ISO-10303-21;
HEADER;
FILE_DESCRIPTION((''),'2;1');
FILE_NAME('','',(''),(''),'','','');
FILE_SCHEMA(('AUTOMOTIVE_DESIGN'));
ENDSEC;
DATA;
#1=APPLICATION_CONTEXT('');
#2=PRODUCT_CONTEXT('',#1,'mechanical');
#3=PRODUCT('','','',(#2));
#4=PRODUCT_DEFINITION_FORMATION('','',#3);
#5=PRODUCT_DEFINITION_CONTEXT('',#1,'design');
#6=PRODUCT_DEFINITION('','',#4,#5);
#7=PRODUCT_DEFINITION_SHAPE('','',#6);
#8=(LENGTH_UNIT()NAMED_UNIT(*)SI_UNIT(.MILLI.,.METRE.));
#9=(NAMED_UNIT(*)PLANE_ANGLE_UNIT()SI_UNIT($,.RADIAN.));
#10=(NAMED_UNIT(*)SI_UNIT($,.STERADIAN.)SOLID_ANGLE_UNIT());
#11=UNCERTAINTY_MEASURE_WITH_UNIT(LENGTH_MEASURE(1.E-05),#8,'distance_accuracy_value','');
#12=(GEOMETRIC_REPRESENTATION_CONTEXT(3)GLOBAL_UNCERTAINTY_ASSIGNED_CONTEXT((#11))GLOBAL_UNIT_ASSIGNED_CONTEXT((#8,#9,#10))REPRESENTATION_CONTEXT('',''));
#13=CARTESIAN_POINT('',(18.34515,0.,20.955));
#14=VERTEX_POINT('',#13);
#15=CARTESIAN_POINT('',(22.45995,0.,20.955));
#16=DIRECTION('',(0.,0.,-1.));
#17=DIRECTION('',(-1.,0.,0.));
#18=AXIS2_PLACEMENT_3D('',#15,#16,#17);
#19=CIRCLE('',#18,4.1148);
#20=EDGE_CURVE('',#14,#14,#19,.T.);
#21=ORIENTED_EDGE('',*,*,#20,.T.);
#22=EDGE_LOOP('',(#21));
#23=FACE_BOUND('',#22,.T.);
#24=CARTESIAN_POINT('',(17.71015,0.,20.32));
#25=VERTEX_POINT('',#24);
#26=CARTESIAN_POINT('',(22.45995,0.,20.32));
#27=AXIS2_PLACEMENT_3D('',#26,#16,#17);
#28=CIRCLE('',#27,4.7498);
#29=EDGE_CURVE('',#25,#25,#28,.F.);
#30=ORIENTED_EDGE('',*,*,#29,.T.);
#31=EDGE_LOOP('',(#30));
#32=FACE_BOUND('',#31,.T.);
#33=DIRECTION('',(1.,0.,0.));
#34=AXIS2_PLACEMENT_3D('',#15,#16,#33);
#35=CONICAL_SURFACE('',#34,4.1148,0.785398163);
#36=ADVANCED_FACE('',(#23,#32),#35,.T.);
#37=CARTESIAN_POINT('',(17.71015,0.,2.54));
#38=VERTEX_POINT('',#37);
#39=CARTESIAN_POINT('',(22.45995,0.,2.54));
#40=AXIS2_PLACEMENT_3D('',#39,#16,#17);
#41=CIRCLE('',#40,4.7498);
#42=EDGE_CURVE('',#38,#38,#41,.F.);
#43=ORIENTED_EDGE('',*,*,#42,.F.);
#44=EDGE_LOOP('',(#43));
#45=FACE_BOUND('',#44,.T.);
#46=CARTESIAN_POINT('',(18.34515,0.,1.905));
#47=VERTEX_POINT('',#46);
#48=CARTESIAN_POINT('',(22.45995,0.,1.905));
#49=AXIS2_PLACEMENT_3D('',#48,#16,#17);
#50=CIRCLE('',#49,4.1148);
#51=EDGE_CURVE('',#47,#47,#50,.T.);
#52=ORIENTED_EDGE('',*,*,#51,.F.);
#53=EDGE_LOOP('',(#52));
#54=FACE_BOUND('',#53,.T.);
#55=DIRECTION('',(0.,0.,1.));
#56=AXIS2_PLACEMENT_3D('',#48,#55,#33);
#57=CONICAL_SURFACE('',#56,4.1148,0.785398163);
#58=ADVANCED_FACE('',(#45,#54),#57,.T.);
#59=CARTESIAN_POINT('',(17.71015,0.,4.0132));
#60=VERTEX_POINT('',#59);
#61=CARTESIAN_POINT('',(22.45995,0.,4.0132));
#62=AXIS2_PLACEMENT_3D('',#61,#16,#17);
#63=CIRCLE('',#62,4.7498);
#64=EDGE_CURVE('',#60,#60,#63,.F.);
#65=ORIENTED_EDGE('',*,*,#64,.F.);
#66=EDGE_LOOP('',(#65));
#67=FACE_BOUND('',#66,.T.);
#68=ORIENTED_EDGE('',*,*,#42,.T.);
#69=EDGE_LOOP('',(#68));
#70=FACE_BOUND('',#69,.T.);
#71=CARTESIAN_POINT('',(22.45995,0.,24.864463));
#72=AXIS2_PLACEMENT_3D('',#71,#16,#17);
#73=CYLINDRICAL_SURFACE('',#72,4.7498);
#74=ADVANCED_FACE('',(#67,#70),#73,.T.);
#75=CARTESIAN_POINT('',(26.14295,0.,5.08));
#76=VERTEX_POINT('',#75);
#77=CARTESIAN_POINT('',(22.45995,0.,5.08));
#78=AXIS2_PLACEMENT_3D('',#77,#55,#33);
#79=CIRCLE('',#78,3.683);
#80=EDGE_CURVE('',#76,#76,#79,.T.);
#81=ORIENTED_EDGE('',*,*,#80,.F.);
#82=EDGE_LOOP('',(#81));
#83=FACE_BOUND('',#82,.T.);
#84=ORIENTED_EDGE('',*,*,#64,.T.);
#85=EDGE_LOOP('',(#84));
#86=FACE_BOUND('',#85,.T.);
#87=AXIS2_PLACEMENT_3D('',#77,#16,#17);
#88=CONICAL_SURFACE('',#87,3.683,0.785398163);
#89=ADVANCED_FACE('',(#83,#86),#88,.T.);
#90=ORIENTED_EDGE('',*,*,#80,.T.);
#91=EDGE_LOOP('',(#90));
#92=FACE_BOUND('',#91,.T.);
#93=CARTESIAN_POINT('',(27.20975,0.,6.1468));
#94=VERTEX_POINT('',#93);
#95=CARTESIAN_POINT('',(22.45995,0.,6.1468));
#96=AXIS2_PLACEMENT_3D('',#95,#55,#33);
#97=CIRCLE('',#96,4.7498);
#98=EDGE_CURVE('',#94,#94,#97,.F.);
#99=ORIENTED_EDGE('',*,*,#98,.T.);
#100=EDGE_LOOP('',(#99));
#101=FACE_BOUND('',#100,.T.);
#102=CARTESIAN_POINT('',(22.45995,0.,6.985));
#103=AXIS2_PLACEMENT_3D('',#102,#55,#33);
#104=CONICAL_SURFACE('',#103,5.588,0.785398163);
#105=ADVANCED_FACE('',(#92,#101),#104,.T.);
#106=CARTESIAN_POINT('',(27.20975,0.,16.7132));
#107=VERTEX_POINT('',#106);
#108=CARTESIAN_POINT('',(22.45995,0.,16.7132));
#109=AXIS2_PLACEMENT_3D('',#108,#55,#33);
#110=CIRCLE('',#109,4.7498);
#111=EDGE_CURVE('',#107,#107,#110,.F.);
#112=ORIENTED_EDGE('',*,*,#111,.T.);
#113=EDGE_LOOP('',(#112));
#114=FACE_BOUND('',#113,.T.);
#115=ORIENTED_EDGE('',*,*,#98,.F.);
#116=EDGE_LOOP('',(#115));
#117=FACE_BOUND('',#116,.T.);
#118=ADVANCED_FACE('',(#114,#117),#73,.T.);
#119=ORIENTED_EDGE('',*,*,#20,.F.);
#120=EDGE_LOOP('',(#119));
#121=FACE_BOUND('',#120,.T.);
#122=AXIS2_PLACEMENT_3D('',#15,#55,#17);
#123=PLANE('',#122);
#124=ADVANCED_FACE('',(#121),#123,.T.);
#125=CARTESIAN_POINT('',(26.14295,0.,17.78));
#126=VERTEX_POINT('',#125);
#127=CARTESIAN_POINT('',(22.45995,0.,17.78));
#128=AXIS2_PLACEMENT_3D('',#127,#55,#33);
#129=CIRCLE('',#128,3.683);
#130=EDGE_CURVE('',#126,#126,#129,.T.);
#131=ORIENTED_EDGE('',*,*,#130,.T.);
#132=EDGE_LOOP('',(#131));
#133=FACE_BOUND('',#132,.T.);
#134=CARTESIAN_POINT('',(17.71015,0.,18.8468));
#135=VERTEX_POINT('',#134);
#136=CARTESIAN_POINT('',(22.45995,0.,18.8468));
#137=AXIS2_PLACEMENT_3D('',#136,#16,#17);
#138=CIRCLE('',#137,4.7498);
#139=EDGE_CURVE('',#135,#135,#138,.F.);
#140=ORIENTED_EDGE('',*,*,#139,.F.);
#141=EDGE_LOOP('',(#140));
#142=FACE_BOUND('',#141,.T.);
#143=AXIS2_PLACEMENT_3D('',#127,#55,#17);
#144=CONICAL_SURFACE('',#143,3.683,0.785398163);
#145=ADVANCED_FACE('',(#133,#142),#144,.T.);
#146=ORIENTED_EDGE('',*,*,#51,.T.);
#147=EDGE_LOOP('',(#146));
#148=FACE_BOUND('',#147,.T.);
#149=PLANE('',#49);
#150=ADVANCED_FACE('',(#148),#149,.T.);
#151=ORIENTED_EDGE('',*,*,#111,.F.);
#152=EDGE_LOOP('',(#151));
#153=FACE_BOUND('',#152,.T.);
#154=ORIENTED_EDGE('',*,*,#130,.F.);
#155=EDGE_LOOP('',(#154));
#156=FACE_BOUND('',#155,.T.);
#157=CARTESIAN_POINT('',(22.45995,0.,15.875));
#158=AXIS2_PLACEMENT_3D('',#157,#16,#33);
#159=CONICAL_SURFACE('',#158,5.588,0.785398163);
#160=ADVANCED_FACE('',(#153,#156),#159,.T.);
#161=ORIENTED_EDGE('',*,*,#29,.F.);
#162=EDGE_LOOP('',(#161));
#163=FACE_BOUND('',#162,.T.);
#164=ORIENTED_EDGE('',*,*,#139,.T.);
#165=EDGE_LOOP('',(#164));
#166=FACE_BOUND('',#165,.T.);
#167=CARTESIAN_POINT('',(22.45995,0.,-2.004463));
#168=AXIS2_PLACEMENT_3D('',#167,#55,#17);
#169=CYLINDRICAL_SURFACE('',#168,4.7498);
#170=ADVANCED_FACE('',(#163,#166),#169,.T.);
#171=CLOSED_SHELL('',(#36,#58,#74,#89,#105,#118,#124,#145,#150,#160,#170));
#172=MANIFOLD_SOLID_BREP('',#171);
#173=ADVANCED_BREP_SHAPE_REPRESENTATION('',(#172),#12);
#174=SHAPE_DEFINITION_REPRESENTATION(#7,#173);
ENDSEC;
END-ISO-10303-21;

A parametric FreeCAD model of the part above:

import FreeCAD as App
import Part
import Sketcher

V = App.Vector
Q = App.Units.Quantity


def edges_at(feature, points):
    """Names of the edges that pass closest to the given points."""
    edges = feature.Shape.Edges
    near = lambda p: min(range(len(edges)), key=lambda i: edges[i].distToShape(Part.Vertex(*p))[0])
    return sorted({f"Edge{near(p) + 1}" for p in points})


def add_polygon(sketch, points):
    """Adds a closed chain of lines whose ends are joined by coincident constraints."""
    first, n = sketch.GeometryCount, len(points)
    for a, b in zip(points, points[1:] + points[:1]):
        sketch.addGeometry(Part.LineSegment(App.Vector(*a, 0), App.Vector(*b, 0)), False)
    for i in range(n):
        sketch.addConstraint(Sketcher.Constraint("Coincident", first + i, 2, first + (i + 1) % n, 1))

doc = App.newDocument("Part")
params = doc.addObject("Spreadsheet::Sheet", "Params")
for row, (alias, value) in enumerate([
    ("sketch1_diameter", "0.374 in"),
    ("pad1_length", "0.45 in"),
    ("sketch2_height", "0.15 in"),
    ("groove_angle", "360 deg"),
    ("sketch3_diameter", "0.374 in"),
    ("pocket1_length", "0.075 in"),
    ("chamfer_size", "0.025 in"),
    ("chamfer2_size", "0.025 in"),
], start=1):
    params.set(f"A{row}", alias)
    params.set(f"B{row}", "=" + value)
    params.setAlias(f"B{row}", alias)

body = doc.addObject("PartDesign::Body", "Body")

sketch1 = body.newObject("Sketcher::SketchObject", "Sketch")
sketch1.AttachmentSupport = (doc.getObject("XY_Plane"), [""])
sketch1.MapMode = "FlatFace"
sketch1.addGeometry(Part.Circle(V(22.45995, 0, 0), V(0, 0, 1), 4.7498), False)
sketch1.addConstraint(Sketcher.Constraint("PointOnObject", 0, 3, -1))
sketch1.addConstraint(Sketcher.Constraint("Diameter", 0, Q("0.374 in")))
sketch1.addConstraint(Sketcher.Constraint("DistanceX", -1, 1, 0, 3, Q("22.45995 mm")))
sketch1.setExpression("Constraints[1]", "Params.sketch1_diameter")
pad1 = body.newObject("PartDesign::Pad", "Pad")
pad1.Profile = sketch1
pad1.setExpression("Length", "Params.pad1_length")

sketch2 = body.newObject("Sketcher::SketchObject", "Sketch001")
sketch2.AttachmentSupport = (doc.getObject("XZ_Plane"), [""])
sketch2.MapMode = "FlatFace"
add_polygon(sketch2, [(16.87195, 6.985), (18.77695, 5.08), (16.87195, 3.175)])
sketch2.addGeometry(Part.LineSegment(V(22.45995, 6.985, 0), V(22.45995, 3.175, 0)), True)
sketch2.addConstraint(Sketcher.Constraint("Vertical", 2))
sketch2.addConstraint(Sketcher.Constraint("Vertical", 3))
sketch2.addConstraint(Sketcher.Constraint("Perpendicular", 0, 1))
sketch2.addConstraint(Sketcher.Constraint("Horizontal", 2, 2, 3, 1))
sketch2.addConstraint(Sketcher.Constraint("Horizontal", 1, 2, 3, 2))
sketch2.addConstraint(Sketcher.Constraint("Equal", 0, 1))
sketch2.addConstraint(Sketcher.Constraint("DistanceY", 2, 1, 2, 2, Q("0.15 in")))
sketch2.addConstraint(Sketcher.Constraint("DistanceY", -1, 1, 0, 2, Q("0.2 in")))
sketch2.addConstraint(Sketcher.Constraint("DistanceX", 2, 2, 3, 1, Q("0.22 in")))
sketch2.addConstraint(Sketcher.Constraint("DistanceX", -1, 1, 0, 2, Q("18.77695 mm")))
sketch2.setExpression("Constraints[9]", "Params.sketch2_height")
groove = body.newObject("PartDesign::Groove", "Groove")
groove.Profile = sketch2
groove.ReferenceAxis = (sketch2, ["Axis0"])
groove.setExpression("Angle", "Params.groove_angle")

sketch3 = body.newObject("Sketcher::SketchObject", "Sketch002")
sketch3.AttachmentSupport = (doc.getObject("XY_Plane"), [""])
sketch3.MapMode = "FlatFace"
sketch3.addGeometry(Part.Circle(V(22.45995, 0, 0), V(0, 0, 1), 4.7498), False)
sketch3.addConstraint(Sketcher.Constraint("PointOnObject", 0, 3, -1))
sketch3.addConstraint(Sketcher.Constraint("Diameter", 0, Q("0.374 in")))
sketch3.addConstraint(Sketcher.Constraint("DistanceX", -1, 1, 0, 3, Q("22.45995 mm")))
sketch3.setExpression("Constraints[1]", "Params.sketch3_diameter")
pocket1 = body.newObject("PartDesign::Pocket", "Pocket")
pocket1.Profile = sketch3
pocket1.setExpression("Length", "Params.pocket1_length")
pocket1.Reversed = True
doc.recompute()

chamfer = body.newObject("PartDesign::Chamfer", "Chamfer")
chamfer.Base = (pocket1, edges_at(pocket1, [(17.71, 0, 1.905)]))
chamfer.setExpression("Size", "Params.chamfer_size")
doc.recompute()

datumplane = body.newObject("PartDesign::Plane", "DatumPlane")
datumplane.AttachmentSupport = (doc.getObject("XY_Plane"), [""])
datumplane.MapMode = "FlatFace"
datumplane.AttachmentOffset = App.Placement(V(0, 0, 0.45 * 25.4), App.Rotation())
mirrored = body.newObject("PartDesign::Mirrored", "Mirrored")
mirrored.Originals = [pad1, groove, pocket1]
mirrored.MirrorPlane = (datumplane, [""])
body.Tip = mirrored
doc.recompute()

chamfer2 = body.newObject("PartDesign::Chamfer", "Chamfer001")
chamfer2.Base = (mirrored, edges_at(mirrored, [(17.71, 0, 20.955)]))
chamfer2.setExpression("Size", "Params.chamfer2_size")

doc.recompute()
